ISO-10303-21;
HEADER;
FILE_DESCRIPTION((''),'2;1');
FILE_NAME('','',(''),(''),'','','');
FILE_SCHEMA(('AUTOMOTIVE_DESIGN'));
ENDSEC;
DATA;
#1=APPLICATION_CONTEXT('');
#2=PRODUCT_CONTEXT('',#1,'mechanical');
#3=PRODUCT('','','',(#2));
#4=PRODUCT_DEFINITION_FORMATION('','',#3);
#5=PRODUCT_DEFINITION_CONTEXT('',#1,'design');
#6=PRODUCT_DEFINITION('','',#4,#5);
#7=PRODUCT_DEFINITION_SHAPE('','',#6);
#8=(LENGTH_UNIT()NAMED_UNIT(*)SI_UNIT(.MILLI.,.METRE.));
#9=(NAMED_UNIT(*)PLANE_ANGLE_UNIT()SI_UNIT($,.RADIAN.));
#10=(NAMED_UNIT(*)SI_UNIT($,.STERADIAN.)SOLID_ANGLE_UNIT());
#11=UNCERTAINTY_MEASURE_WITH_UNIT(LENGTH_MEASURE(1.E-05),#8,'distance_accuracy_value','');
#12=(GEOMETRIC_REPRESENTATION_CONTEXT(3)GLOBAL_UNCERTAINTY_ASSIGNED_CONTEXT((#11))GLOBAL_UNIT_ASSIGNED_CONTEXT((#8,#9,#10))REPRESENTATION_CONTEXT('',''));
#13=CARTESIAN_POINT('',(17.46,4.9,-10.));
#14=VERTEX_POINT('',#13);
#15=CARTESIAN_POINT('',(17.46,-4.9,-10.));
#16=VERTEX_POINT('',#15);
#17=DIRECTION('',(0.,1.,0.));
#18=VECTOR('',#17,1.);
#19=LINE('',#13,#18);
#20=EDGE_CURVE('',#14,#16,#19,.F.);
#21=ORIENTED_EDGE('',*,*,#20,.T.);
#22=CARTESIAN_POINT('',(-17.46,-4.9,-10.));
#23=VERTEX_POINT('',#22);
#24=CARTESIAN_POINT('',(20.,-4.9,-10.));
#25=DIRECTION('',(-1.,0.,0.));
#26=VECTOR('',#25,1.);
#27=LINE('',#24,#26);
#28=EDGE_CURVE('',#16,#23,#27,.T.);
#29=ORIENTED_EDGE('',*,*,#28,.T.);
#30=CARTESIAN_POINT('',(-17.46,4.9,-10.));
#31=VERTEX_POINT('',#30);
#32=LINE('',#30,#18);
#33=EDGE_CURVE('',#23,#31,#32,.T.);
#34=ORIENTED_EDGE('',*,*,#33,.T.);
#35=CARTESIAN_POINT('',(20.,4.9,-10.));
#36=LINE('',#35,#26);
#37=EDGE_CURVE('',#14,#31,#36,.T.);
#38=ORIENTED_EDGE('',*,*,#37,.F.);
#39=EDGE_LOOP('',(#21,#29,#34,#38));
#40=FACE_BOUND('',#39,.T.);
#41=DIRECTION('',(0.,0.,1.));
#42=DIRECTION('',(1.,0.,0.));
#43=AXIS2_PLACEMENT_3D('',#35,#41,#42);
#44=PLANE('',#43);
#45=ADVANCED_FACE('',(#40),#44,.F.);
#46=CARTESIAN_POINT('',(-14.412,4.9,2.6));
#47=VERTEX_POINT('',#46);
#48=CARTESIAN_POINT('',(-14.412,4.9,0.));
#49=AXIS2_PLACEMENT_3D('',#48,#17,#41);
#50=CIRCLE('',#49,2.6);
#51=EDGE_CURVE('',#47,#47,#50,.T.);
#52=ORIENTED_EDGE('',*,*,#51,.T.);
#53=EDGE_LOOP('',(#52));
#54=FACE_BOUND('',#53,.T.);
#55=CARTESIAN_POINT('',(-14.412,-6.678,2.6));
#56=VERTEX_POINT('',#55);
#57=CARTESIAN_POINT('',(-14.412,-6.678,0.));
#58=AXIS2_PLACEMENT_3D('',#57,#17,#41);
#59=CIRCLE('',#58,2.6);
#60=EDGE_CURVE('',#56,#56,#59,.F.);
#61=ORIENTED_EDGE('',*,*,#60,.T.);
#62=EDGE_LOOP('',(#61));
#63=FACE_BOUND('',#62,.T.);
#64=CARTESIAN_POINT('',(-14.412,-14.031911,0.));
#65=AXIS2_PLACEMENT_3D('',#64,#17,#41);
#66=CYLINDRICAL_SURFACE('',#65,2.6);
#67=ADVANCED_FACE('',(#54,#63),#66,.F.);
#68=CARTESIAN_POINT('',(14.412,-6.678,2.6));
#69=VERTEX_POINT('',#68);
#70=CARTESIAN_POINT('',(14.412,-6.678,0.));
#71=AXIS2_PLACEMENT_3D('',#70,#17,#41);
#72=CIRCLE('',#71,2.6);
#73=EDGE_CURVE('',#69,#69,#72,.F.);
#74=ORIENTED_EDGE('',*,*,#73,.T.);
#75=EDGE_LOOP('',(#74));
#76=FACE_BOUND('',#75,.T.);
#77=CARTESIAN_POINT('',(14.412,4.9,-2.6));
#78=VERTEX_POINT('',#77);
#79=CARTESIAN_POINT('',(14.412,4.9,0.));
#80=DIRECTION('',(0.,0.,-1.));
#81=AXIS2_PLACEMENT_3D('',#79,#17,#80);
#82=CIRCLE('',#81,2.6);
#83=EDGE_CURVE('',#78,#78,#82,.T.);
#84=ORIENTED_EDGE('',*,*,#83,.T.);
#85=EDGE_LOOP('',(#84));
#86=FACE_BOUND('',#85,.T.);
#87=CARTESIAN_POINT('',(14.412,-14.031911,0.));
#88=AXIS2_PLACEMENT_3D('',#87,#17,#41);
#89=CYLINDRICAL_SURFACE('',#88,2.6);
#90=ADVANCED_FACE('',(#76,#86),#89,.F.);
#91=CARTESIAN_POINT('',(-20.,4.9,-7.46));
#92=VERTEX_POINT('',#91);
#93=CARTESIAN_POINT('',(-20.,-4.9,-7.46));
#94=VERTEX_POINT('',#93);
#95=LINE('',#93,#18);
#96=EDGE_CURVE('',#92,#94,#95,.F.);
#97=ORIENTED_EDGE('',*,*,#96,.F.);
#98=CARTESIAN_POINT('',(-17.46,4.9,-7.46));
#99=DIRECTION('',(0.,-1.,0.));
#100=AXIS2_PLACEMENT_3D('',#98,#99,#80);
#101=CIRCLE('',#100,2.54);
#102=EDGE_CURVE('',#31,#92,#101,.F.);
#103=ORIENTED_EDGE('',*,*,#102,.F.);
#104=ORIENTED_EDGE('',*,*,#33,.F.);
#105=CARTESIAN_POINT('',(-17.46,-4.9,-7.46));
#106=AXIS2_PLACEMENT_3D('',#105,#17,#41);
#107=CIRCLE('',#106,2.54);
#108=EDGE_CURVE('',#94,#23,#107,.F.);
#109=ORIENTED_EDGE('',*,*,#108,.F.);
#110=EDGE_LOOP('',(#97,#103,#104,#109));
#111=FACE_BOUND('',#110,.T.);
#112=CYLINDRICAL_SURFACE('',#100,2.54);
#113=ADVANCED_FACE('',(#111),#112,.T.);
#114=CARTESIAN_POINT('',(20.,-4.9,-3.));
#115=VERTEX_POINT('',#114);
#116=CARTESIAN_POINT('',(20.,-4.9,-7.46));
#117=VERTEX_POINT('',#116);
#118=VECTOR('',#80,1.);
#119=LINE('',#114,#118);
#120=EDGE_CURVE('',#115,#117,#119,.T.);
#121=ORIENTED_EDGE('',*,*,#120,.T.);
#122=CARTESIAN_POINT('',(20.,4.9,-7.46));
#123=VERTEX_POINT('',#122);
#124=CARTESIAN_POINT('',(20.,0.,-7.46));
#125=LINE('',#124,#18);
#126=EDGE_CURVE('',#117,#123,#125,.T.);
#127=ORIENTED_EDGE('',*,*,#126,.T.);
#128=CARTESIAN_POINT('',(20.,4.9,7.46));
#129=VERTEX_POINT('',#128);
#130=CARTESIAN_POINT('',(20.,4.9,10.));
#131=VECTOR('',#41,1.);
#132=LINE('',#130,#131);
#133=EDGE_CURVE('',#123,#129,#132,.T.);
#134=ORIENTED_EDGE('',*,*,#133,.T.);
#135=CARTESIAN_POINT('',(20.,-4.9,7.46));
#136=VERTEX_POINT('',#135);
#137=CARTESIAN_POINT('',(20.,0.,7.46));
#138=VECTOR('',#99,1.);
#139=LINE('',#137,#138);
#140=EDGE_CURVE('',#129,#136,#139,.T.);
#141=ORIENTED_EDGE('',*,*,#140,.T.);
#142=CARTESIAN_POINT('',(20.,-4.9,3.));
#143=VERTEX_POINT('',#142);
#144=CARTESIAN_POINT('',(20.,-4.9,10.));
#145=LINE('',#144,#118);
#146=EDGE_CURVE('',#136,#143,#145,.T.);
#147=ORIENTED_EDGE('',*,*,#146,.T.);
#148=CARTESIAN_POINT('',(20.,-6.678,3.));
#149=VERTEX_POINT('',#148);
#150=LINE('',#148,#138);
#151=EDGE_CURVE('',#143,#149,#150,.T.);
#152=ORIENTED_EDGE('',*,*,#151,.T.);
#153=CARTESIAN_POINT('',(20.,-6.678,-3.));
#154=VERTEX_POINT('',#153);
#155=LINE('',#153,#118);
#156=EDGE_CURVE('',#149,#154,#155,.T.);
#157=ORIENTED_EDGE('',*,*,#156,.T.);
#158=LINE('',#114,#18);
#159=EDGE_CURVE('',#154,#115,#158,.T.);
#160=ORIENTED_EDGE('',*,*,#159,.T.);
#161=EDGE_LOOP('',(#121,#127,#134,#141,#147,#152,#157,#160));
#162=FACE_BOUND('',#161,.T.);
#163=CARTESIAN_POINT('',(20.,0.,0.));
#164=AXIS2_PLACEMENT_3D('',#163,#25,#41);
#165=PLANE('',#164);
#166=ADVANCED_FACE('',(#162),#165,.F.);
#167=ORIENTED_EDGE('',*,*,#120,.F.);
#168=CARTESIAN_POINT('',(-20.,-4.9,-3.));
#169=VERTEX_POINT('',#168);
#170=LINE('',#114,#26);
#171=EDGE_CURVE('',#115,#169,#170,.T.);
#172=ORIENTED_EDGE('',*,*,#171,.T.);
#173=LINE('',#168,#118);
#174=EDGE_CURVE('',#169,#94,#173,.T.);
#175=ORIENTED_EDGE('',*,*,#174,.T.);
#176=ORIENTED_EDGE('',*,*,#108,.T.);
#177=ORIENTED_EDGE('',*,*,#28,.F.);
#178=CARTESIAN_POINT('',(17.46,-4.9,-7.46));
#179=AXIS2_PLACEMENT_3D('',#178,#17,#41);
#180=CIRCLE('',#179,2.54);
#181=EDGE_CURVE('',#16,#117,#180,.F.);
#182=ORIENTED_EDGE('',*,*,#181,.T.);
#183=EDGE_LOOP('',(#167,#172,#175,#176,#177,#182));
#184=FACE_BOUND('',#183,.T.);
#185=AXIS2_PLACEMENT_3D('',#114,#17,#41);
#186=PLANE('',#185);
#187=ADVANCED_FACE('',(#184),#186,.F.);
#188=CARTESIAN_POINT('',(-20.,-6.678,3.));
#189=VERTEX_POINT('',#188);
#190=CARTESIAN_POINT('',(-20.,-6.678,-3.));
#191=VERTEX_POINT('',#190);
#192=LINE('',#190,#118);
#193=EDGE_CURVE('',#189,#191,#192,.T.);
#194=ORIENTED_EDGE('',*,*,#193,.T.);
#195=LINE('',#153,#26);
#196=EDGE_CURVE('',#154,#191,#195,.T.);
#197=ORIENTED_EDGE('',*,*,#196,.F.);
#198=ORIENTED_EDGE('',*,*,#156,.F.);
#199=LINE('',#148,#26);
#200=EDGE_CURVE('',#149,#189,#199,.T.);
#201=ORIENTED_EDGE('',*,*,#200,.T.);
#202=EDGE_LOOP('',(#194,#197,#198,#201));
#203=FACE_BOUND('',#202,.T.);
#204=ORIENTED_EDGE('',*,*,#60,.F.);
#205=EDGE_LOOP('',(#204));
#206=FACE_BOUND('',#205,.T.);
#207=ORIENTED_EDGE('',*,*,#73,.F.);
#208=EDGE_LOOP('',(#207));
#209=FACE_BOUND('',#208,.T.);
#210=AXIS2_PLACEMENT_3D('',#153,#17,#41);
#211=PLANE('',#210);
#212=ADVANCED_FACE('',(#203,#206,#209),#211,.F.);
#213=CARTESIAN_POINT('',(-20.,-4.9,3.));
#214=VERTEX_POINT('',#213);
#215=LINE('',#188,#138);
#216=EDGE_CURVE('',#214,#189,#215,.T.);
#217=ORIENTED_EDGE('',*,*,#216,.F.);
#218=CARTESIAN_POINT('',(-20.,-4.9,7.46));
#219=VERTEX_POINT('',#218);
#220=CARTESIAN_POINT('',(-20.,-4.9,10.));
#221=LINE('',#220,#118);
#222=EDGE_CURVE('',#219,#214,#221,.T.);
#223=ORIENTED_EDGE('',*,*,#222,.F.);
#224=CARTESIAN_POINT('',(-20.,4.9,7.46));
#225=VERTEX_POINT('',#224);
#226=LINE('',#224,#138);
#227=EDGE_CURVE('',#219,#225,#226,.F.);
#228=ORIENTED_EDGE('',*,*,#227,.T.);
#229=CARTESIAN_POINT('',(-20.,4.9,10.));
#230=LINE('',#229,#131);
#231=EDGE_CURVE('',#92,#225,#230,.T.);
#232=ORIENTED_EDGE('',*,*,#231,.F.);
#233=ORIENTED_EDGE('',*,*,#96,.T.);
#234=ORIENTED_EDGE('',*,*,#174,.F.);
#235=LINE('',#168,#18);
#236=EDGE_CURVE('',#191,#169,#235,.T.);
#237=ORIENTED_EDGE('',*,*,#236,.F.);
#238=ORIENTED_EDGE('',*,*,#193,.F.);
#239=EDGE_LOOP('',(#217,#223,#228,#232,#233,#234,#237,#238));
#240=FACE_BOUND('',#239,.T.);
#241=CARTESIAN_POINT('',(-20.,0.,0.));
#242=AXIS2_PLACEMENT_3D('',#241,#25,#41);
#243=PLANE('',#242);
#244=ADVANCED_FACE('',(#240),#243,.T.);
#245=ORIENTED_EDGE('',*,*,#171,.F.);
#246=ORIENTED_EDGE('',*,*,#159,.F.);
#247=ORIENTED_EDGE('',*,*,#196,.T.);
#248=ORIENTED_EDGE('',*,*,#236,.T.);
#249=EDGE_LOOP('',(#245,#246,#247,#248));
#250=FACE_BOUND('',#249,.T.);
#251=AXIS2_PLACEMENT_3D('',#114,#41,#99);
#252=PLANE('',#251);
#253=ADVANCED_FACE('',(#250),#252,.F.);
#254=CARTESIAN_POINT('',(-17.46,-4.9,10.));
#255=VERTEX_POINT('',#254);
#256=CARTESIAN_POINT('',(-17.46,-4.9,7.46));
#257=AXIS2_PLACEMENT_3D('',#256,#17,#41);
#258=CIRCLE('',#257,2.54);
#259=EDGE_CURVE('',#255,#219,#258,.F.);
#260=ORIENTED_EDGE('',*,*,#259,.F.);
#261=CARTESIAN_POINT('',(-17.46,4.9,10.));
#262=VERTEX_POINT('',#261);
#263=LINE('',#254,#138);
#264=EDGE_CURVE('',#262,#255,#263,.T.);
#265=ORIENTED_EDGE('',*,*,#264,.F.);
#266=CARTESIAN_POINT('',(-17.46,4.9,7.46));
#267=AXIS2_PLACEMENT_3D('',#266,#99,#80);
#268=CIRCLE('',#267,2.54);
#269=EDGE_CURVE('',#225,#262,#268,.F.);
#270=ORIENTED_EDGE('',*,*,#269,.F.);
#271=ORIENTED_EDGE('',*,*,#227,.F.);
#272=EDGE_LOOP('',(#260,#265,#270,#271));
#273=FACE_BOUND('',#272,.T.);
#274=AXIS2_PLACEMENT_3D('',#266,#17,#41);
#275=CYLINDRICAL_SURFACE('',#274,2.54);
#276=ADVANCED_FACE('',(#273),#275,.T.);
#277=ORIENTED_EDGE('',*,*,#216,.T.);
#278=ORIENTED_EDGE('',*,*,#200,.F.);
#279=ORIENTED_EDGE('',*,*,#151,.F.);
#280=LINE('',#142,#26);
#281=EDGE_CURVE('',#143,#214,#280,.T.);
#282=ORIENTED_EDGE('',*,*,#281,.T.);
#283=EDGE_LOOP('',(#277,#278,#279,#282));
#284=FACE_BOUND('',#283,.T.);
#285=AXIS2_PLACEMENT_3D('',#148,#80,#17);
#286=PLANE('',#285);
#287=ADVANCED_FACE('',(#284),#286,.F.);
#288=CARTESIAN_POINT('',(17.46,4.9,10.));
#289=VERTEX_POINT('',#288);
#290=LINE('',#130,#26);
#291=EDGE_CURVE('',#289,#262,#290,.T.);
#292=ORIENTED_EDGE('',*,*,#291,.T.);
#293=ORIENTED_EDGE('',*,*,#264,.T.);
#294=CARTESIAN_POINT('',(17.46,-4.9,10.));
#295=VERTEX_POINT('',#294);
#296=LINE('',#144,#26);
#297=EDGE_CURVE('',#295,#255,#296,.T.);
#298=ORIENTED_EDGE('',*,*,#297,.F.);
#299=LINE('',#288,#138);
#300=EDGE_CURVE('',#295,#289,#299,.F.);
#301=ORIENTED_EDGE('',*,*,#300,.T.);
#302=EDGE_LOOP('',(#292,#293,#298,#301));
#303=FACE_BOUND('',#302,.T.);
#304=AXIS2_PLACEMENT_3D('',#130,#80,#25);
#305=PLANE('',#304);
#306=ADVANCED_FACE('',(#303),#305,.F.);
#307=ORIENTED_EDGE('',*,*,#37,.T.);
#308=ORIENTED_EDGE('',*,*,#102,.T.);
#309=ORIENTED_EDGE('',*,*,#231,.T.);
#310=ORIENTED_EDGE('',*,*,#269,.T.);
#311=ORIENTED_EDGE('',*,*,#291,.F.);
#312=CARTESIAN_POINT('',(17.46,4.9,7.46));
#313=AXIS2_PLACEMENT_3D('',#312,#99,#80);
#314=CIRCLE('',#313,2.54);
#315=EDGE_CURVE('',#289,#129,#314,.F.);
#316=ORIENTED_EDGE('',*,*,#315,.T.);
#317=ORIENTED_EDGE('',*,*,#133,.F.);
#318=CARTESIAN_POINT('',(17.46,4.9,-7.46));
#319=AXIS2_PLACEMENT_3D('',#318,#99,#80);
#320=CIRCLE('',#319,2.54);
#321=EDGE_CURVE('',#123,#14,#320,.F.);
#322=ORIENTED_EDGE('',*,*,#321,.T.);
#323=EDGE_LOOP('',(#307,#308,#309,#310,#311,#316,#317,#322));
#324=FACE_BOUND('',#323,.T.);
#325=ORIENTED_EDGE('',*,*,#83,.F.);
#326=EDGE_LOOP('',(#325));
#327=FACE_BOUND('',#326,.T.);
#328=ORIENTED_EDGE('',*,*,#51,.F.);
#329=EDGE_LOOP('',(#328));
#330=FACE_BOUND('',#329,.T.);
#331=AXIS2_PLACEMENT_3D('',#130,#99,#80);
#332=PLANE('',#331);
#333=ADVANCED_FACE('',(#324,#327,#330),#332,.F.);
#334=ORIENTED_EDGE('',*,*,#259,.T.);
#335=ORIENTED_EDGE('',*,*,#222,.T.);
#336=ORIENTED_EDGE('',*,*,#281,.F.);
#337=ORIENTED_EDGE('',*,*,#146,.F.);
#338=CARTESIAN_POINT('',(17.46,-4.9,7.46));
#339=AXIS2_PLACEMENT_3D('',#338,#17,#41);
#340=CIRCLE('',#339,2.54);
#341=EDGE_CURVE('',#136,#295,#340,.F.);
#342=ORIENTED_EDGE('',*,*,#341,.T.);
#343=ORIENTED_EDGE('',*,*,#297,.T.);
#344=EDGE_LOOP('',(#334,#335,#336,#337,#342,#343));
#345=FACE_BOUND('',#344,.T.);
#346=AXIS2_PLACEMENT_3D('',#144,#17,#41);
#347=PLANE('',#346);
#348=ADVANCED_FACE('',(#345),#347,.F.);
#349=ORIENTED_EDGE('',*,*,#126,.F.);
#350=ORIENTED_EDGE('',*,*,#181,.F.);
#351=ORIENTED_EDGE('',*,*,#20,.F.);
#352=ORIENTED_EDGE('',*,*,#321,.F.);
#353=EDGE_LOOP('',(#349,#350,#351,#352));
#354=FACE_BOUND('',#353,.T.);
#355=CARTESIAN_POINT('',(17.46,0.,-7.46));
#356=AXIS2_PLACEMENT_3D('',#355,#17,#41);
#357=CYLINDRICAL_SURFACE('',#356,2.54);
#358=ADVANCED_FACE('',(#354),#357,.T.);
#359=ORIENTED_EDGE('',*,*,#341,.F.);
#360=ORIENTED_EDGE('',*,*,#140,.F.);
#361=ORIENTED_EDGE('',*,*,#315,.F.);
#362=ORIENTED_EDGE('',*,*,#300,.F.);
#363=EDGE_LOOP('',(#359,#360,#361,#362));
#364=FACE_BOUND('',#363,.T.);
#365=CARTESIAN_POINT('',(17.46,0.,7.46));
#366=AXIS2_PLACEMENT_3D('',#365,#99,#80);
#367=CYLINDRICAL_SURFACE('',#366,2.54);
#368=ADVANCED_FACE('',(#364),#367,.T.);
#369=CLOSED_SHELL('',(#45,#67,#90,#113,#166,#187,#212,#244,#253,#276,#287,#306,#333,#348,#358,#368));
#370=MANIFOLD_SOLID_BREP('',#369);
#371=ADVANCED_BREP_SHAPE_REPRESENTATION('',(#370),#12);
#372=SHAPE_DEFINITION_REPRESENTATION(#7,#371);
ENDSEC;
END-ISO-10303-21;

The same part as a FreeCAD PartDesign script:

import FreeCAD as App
import Part
import Sketcher


def edges_at(feature, points):
    """Names of the edges that pass closest to the given points."""
    edges = feature.Shape.Edges
    near = lambda p: min(range(len(edges)), key=lambda i: edges[i].distToShape(Part.Vertex(*p))[0])
    return sorted({f"Edge{near(p) + 1}" for p in points})


def add_polygon(sketch, points):
    """Adds a closed chain of lines whose ends are joined by coincident constraints."""
    first, n = sketch.GeometryCount, len(points)
    for a, b in zip(points, points[1:] + points[:1]):
        sketch.addGeometry(Part.LineSegment(App.Vector(*a, 0), App.Vector(*b, 0)), False)
    for i in range(n):
        sketch.addConstraint(Sketcher.Constraint("Coincident", first + i, 2, first + (i + 1) % n, 1))

doc = App.newDocument("Part")
params = doc.addObject("Spreadsheet::Sheet", "Params")
for row, (alias, value) in enumerate([
    ("sketch1_height", "20 mm"),
    ("sketch1_height2", "7 mm"),
    ("sketch1_width", "9.8 mm"),
    ("pad1_length", "40 mm"),
    ("sketch2_diameter", "5.2 mm"),
    ("pocket1_length", "11.578 mm"),
    ("fillet_radius", "2.54 mm"),
], start=1):
    params.set(f"A{row}", alias)
    params.set(f"B{row}", "=" + value)
    params.setAlias(f"B{row}", alias)

body = doc.addObject("PartDesign::Body", "Body")

# Sketch on YZ plane
sketch1 = body.newObject("Sketcher::SketchObject", "Sketch")
sketch1.AttachmentSupport = (doc.getObject("YZ_Plane"), [""])
sketch1.MapMode = "FlatFace"
add_polygon(sketch1, [(4.9, -10), (4.9, 10), (-4.9, 10), (-4.9, 3), (-6.7, 3), (-6.7, -3), (-4.9, -3), (-4.9, -10)])  # lines 0-7
sketch1.addConstraint([
    Sketcher.Constraint("Vertical", 0),
    Sketcher.Constraint("Horizontal", 1),
    Sketcher.Constraint("Vertical", 2),
    Sketcher.Constraint("Horizontal", 3),
    Sketcher.Constraint("Vertical", 4),
    Sketcher.Constraint("Horizontal", 5),
    Sketcher.Constraint("Vertical", 6),
    Sketcher.Constraint("Horizontal", 7),
    Sketcher.Constraint("Symmetric", 0, 2, 6, 2, -1, 1),
    Sketcher.Constraint("Symmetric", 2, 2, 5, 2, -1),
    Sketcher.Constraint("DistanceY", 0, 1, 0, 2, 20.0),
    Sketcher.Constraint("DistanceY", 2, 2, 2, 1, 7.0),
    Sketcher.Constraint("DistanceX", 1, 2, 1, 1, 9.8),
    Sketcher.Constraint("DistanceX", 3, 2, 3, 1, 1.778),
])
sketch1.setExpression("Constraints[18]", "Params.sketch1_height")
sketch1.setExpression("Constraints[19]", "Params.sketch1_height2")
sketch1.setExpression("Constraints[20]", "Params.sketch1_width")
pad1 = body.newObject("PartDesign::Pad", "Pad")
pad1.Profile = sketch1
pad1.setExpression("Length", "Params.pad1_length")
pad1.Midplane = True

# Sketch on XZ plane
sketch2 = body.newObject("Sketcher::SketchObject", "Sketch001")
sketch2.AttachmentSupport = (doc.getObject("XZ_Plane"), [""])
sketch2.MapMode = "FlatFace"
sketch2.AttachmentOffset = App.Placement(App.Vector(0, 0, -4.9), App.Rotation())
sketch2.addGeometry([
    Part.Circle(App.Vector(-14.4, 0, 0), App.Vector(0, 0, 1), 2.6),
    Part.Circle(App.Vector(14.4, 0, 0), App.Vector(0, 0, 1), 2.6),
], False)
sketch2.addConstraint([
    Sketcher.Constraint("Equal", 0, 1),
    Sketcher.Constraint("Symmetric", 0, 3, 1, 3, -1, 1),
    Sketcher.Constraint("PointOnObject", 0, 3, -1),
    Sketcher.Constraint("Diameter", 0, 5.2),
    Sketcher.Constraint("DistanceX", 0, 3, -1, 1, 14.412),
])
sketch2.setExpression("Constraints[3]", "Params.sketch2_diameter")
pocket1 = body.newObject("PartDesign::Pocket", "Pocket")
pocket1.Profile = sketch2
pocket1.setExpression("Length", "Params.pocket1_length")
pocket1.Reversed = True
doc.recompute()

fillet = body.newObject("PartDesign::Fillet", "Fillet")
fillet.Base = (pocket1, edges_at(pocket1, [
    (-20, 0, -10),
    (20, 0, 10),
    (20, 0, -10),
    (-20, 0, 10),
]))
fillet.setExpression("Radius", "Params.fillet_radius")

doc.recompute()
